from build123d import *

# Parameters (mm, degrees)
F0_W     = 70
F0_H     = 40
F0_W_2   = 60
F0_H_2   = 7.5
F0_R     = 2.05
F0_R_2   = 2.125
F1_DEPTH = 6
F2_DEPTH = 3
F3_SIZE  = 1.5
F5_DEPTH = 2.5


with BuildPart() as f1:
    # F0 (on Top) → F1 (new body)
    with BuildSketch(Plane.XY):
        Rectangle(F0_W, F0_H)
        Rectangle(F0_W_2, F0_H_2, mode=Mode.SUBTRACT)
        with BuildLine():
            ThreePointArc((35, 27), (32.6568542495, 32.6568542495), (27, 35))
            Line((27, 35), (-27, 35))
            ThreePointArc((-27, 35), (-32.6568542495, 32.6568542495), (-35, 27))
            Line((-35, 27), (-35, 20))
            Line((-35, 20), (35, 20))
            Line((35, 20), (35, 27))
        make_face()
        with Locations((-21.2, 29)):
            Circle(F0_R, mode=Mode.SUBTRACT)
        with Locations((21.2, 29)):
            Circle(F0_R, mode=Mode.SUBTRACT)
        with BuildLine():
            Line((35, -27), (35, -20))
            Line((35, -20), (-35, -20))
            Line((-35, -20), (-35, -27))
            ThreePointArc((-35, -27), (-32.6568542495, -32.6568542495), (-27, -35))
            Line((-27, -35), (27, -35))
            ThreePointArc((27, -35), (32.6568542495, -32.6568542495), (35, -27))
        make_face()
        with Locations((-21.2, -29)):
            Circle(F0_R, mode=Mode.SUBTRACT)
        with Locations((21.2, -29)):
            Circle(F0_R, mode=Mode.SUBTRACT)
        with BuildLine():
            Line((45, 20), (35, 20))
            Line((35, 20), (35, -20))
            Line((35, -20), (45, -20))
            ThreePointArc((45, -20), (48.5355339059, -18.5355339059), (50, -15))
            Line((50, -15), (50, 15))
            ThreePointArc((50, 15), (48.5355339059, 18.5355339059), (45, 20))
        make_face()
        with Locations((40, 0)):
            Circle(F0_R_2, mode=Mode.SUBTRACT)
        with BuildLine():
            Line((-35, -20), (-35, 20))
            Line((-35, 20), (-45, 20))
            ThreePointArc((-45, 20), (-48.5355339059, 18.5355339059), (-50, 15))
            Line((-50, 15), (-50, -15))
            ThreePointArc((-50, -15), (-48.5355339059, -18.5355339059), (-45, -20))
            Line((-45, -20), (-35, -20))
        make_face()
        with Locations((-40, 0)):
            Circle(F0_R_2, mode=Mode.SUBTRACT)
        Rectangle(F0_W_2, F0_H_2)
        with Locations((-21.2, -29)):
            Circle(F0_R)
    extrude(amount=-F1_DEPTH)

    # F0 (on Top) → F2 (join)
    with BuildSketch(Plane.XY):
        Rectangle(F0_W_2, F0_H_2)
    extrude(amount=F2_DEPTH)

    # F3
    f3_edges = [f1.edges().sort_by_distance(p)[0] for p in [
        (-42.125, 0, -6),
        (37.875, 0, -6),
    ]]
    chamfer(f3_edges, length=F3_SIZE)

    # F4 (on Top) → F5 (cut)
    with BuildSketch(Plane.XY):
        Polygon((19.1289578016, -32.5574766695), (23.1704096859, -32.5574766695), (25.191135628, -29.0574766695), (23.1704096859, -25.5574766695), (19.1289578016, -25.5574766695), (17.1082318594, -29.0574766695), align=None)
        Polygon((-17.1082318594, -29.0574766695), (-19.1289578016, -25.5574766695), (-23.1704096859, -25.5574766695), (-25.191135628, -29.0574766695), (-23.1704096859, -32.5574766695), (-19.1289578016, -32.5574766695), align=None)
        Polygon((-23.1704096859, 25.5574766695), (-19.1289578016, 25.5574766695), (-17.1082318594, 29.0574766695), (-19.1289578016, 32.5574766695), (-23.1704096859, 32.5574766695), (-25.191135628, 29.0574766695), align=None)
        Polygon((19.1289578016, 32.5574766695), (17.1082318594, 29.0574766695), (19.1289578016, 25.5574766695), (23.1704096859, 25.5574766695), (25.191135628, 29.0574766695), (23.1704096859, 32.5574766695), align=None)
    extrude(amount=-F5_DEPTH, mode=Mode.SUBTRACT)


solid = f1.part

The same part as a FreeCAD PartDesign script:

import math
import FreeCAD as App
import Part
import Sketcher

V = App.Vector
Q = App.Units.Quantity


def edges_at(feature, points):
    """Names of the edges that pass closest to the given points."""
    edges = feature.Shape.Edges
    near = lambda p: min(range(len(edges)), key=lambda i: edges[i].distToShape(Part.Vertex(*p))[0])
    return sorted({f"Edge{near(p) + 1}" for p in points})

doc = App.newDocument("Part")
body = doc.addObject("PartDesign::Body", "Body")

sketch1 = doc.addObject("Sketcher::SketchObject", "Sketch")
body.addObject(sketch1)
sketch1.AttachmentSupport = (doc.XY_Plane, [""])
sketch1.MapMode = "FlatFace"
sketch1.addGeometry([
    Part.LineSegment(V(-35, 27, 0), V(-35, 20, 0)),
    Part.LineSegment(V(-35, 20, 0), V(-45, 20, 0)),
    Part.ArcOfCircle(Part.Circle(V(-45, 15, 0), V(0, 0, 1), 5), math.radians(90), math.radians(180)),
    Part.LineSegment(V(-50, 15, 0), V(-50, -15, 0)),
    Part.ArcOfCircle(Part.Circle(V(-45, -15, 0), V(0, 0, 1), 5), math.radians(180), math.radians(270)),
    Part.LineSegment(V(-45, -20, 0), V(-35, -20, 0)),
    Part.LineSegment(V(-35, -20, 0), V(-35, -27, 0)),
    Part.ArcOfCircle(Part.Circle(V(-27, -27, 0), V(0, 0, 1), 8), math.radians(180), math.radians(270)),
    Part.LineSegment(V(-27, -35, 0), V(27, -35, 0)),
    Part.ArcOfCircle(Part.Circle(V(27, -27, 0), V(0, 0, 1), 8), math.radians(-90), math.radians(0)),
    Part.LineSegment(V(35, -27, 0), V(35, -20, 0)),
    Part.LineSegment(V(35, -20, 0), V(45, -20, 0)),
    Part.ArcOfCircle(Part.Circle(V(45, -15, 0), V(0, 0, 1), 5), math.radians(-90), math.radians(0)),
    Part.LineSegment(V(50, -15, 0), V(50, 15, 0)),
    Part.ArcOfCircle(Part.Circle(V(45, 15, 0), V(0, 0, 1), 5), math.radians(0), math.radians(90)),
    Part.LineSegment(V(45, 20, 0), V(35, 20, 0)),
    Part.LineSegment(V(35, 20, 0), V(35, 27, 0)),
    Part.ArcOfCircle(Part.Circle(V(27, 27, 0), V(0, 0, 1), 8), math.radians(0), math.radians(90)),
    Part.LineSegment(V(27, 35, 0), V(-27, 35, 0)),
    Part.ArcOfCircle(Part.Circle(V(-27, 27, 0), V(0, 0, 1), 8), math.radians(90), math.radians(180)),
    Part.Circle(V(-40, 0, 0), V(0, 0, 1), 2.125),
    Part.Circle(V(21.2, -29, 0), V(0, 0, 1), 2.05),
    Part.Circle(V(40, 0, 0), V(0, 0, 1), 2.125),
    Part.Circle(V(-21.2, 29, 0), V(0, 0, 1), 2.05),
    Part.Circle(V(21.2, 29, 0), V(0, 0, 1), 2.05),
], False)
sketch1.addConstraint([
    Sketcher.Constraint("Coincident", 0, 2, 1, 1),
    Sketcher.Constraint("Tangent", 1, 2, 2, 1),
    Sketcher.Constraint("Tangent", 2, 2, 3, 1),
    Sketcher.Constraint("Tangent", 3, 2, 4, 1),
    Sketcher.Constraint("Tangent", 4, 2, 5, 1),
    Sketcher.Constraint("Coincident", 5, 2, 6, 1),
    Sketcher.Constraint("Tangent", 6, 2, 7, 1),
    Sketcher.Constraint("Tangent", 7, 2, 8, 1),
    Sketcher.Constraint("Tangent", 8, 2, 9, 1),
    Sketcher.Constraint("Tangent", 9, 2, 10, 1),
    Sketcher.Constraint("Coincident", 10, 2, 11, 1),
    Sketcher.Constraint("Tangent", 11, 2, 12, 1),
    Sketcher.Constraint("Tangent", 12, 2, 13, 1),
    Sketcher.Constraint("Tangent", 13, 2, 14, 1),
    Sketcher.Constraint("Tangent", 14, 2, 15, 1),
    Sketcher.Constraint("Coincident", 15, 2, 16, 1),
    Sketcher.Constraint("Tangent", 16, 2, 17, 1),
    Sketcher.Constraint("Tangent", 17, 2, 18, 1),
    Sketcher.Constraint("Tangent", 18, 2, 19, 1),
    Sketcher.Constraint("Tangent", 19, 2, 0, 1),
    Sketcher.Constraint("Vertical", 0),
    Sketcher.Constraint("Horizontal", 1),
    Sketcher.Constraint("Vertical", 3),
    Sketcher.Constraint("Horizontal", 5),
    Sketcher.Constraint("Vertical", 6),
    Sketcher.Constraint("Horizontal", 8),
    Sketcher.Constraint("Vertical", 10),
    Sketcher.Constraint("Horizontal", 11),
    Sketcher.Constraint("Vertical", 13),
    Sketcher.Constraint("Horizontal", 15),
    Sketcher.Constraint("Vertical", 16),
    Sketcher.Constraint("Horizontal", 18),
    Sketcher.Constraint("Equal", 2, 4),
    Sketcher.Constraint("Equal", 7, 9),
    Sketcher.Constraint("Equal", 4, 12),
    Sketcher.Constraint("Equal", 12, 14),
    Sketcher.Constraint("Equal", 9, 17),
    Sketcher.Constraint("Equal", 17, 19),
    Sketcher.Constraint("Equal", 20, 22),
    Sketcher.Constraint("Equal", 21, 23),
    Sketcher.Constraint("Equal", 23, 24),
    Sketcher.Constraint("Symmetric", 2, 3, 12, 3, -1, 1),
    Sketcher.Constraint("Symmetric", 7, 3, 17, 3, -1, 1),
    Sketcher.Constraint("Symmetric", 20, 3, 22, 3, -1, 1),
    Sketcher.Constraint("Symmetric", 21, 3, 23, 3, -1, 1),
    Sketcher.Constraint("Symmetric", 23, 3, 24, 3, -2),
    Sketcher.Constraint("Symmetric", 5, 2, 10, 2, -2),
    Sketcher.Constraint("Symmetric", 0, 2, 15, 2, -2),
    Sketcher.Constraint("PointOnObject", 20, 3, -1),
    Sketcher.Constraint("Radius", 2, Q("5 mm")),
    Sketcher.Constraint("Radius", 7, Q("8 mm")),
    Sketcher.Constraint("Diameter", 21, Q("4.1 mm")),
    Sketcher.Constraint("Diameter", 20, Q("4.25 mm")),
    Sketcher.Constraint("DistanceX", 1, 2, 1, 1, Q("10 mm")),
    Sketcher.Constraint("DistanceX", 8, 1, 8, 2, Q("54 mm")),
    Sketcher.Constraint("DistanceY", 0, 2, 0, 1, Q("7 mm")),
    Sketcher.Constraint("DistanceY", 3, 2, 3, 1, Q("30 mm")),
    Sketcher.Constraint("DistanceX", 20, 3, -1, 1, Q("40 mm")),
    Sketcher.Constraint("DistanceY", 21, 3, -1, 1, Q("29 mm")),
    Sketcher.Constraint("DistanceX", -1, 1, 21, 3, Q("21.2 mm")),
])
pad1 = doc.addObject("PartDesign::Pad", "Pad")
body.addObject(pad1)
pad1.Profile = sketch1
pad1.Length = 6
pad1.Reversed = True

sketch2 = doc.addObject("Sketcher::SketchObject", "Sketch001")
body.addObject(sketch2)
sketch2.AttachmentSupport = (doc.XY_Plane, [""])
sketch2.MapMode = "FlatFace"
sketch2.addGeometry([
    Part.LineSegment(V(-30, 3.75, 0), V(-30, -3.75, 0)),
    Part.LineSegment(V(-30, -3.75, 0), V(30, -3.75, 0)),
    Part.LineSegment(V(30, -3.75, 0), V(30, 3.75, 0)),
    Part.LineSegment(V(30, 3.75, 0), V(-30, 3.75, 0)),
], False)
sketch2.addConstraint([
    Sketcher.Constraint("Coincident", 0, 2, 1, 1),
    Sketcher.Constraint("Coincident", 1, 2, 2, 1),
    Sketcher.Constraint("Coincident", 2, 2, 3, 1),
    Sketcher.Constraint("Coincident", 3, 2, 0, 1),
    Sketcher.Constraint("Vertical", 0),
    Sketcher.Constraint("Horizontal", 1),
    Sketcher.Constraint("Vertical", 2),
    Sketcher.Constraint("Horizontal", 3),
    Sketcher.Constraint("Symmetric", 0, 2, 2, 2, -1, 1),
    Sketcher.Constraint("DistanceX", 1, 1, 1, 2, Q("60 mm")),
    Sketcher.Constraint("DistanceY", 0, 2, 0, 1, Q("7.5 mm")),
])
pad2 = doc.addObject("PartDesign::Pad", "Pad001")
body.addObject(pad2)
pad2.Profile = sketch2
pad2.Length = 3
doc.recompute()

chamfer = doc.addObject("PartDesign::Chamfer", "Chamfer")
body.addObject(chamfer)
chamfer.Base = (pad2, edges_at(pad2, [(-42.125, 0, -6), (37.875, 0, -6)]))
chamfer.Size = 1.5

sketch3 = doc.addObject("Sketcher::SketchObject", "Sketch002")
body.addObject(sketch3)
sketch3.AttachmentSupport = (doc.XY_Plane, [""])
sketch3.MapMode = "FlatFace"
sketch3.addGeometry([
    Part.LineSegment(V(19.128958, -32.557477, 0), V(23.17041, -32.557477, 0)),
    Part.LineSegment(V(23.17041, -32.557477, 0), V(25.191136, -29.057477, 0)),
    Part.LineSegment(V(25.191136, -29.057477, 0), V(23.17041, -25.557477, 0)),
    Part.LineSegment(V(23.17041, -25.557477, 0), V(19.128958, -25.557477, 0)),
    Part.LineSegment(V(19.128958, -25.557477, 0), V(17.108232, -29.057477, 0)),
    Part.LineSegment(V(17.108232, -29.057477, 0), V(19.128958, -32.557477, 0)),
    Part.LineSegment(V(-17.108232, -29.057477, 0), V(-19.128958, -25.557477, 0)),
    Part.LineSegment(V(-19.128958, -25.557477, 0), V(-23.17041, -25.557477, 0)),
    Part.LineSegment(V(-23.17041, -25.557477, 0), V(-25.191136, -29.057477, 0)),
    Part.LineSegment(V(-25.191136, -29.057477, 0), V(-23.17041, -32.557477, 0)),
    Part.LineSegment(V(-23.17041, -32.557477, 0), V(-19.128958, -32.557477, 0)),
    Part.LineSegment(V(-19.128958, -32.557477, 0), V(-17.108232, -29.057477, 0)),
    Part.LineSegment(V(-23.17041, 25.557477, 0), V(-19.128958, 25.557477, 0)),
    Part.LineSegment(V(-19.128958, 25.557477, 0), V(-17.108232, 29.057477, 0)),
    Part.LineSegment(V(-17.108232, 29.057477, 0), V(-19.128958, 32.557477, 0)),
    Part.LineSegment(V(-19.128958, 32.557477, 0), V(-23.17041, 32.557477, 0)),
    Part.LineSegment(V(-23.17041, 32.557477, 0), V(-25.191136, 29.057477, 0)),
    Part.LineSegment(V(-25.191136, 29.057477, 0), V(-23.17041, 25.557477, 0)),
    Part.LineSegment(V(19.128958, 32.557477, 0), V(17.108232, 29.057477, 0)),
    Part.LineSegment(V(17.108232, 29.057477, 0), V(19.128958, 25.557477, 0)),
    Part.LineSegment(V(19.128958, 25.557477, 0), V(23.17041, 25.557477, 0)),
    Part.LineSegment(V(23.17041, 25.557477, 0), V(25.191136, 29.057477, 0)),
    Part.LineSegment(V(25.191136, 29.057477, 0), V(23.17041, 32.557477, 0)),
    Part.LineSegment(V(23.17041, 32.557477, 0), V(19.128958, 32.557477, 0)),
], False)
sketch3.addConstraint([
    Sketcher.Constraint("Coincident", 0, 2, 1, 1),
    Sketcher.Constraint("Coincident", 1, 2, 2, 1),
    Sketcher.Constraint("Coincident", 2, 2, 3, 1),
    Sketcher.Constraint("Coincident", 3, 2, 4, 1),
    Sketcher.Constraint("Coincident", 4, 2, 5, 1),
    Sketcher.Constraint("Coincident", 5, 2, 0, 1),
    Sketcher.Constraint("Coincident", 6, 2, 7, 1),
    Sketcher.Constraint("Coincident", 7, 2, 8, 1),
    Sketcher.Constraint("Coincident", 8, 2, 9, 1),
    Sketcher.Constraint("Coincident", 9, 2, 10, 1),
    Sketcher.Constraint("Coincident", 10, 2, 11, 1),
    Sketcher.Constraint("Coincident", 11, 2, 6, 1),
    Sketcher.Constraint("Coincident", 12, 2, 13, 1),
    Sketcher.Constraint("Coincident", 13, 2, 14, 1),
    Sketcher.Constraint("Coincident", 14, 2, 15, 1),
    Sketcher.Constraint("Coincident", 15, 2, 16, 1),
    Sketcher.Constraint("Coincident", 16, 2, 17, 1),
    Sketcher.Constraint("Coincident", 17, 2, 12, 1),
    Sketcher.Constraint("Coincident", 18, 2, 19, 1),
    Sketcher.Constraint("Coincident", 19, 2, 20, 1),
    Sketcher.Constraint("Coincident", 20, 2, 21, 1),
    Sketcher.Constraint("Coincident", 21, 2, 22, 1),
    Sketcher.Constraint("Coincident", 22, 2, 23, 1),
    Sketcher.Constraint("Coincident", 23, 2, 18, 1),
    Sketcher.Constraint("Horizontal", 0),
    Sketcher.Constraint("Horizontal", 3),
    Sketcher.Constraint("Horizontal", 7),
    Sketcher.Constraint("Horizontal", 10),
    Sketcher.Constraint("Horizontal", 12),
    Sketcher.Constraint("Horizontal", 15),
    Sketcher.Constraint("Horizontal", 20),
    Sketcher.Constraint("Horizontal", 23),
    Sketcher.Constraint("Symmetric", 3, 2, 12, 2, -1, 1),
    Sketcher.Constraint("Symmetric", 4, 2, 13, 2, -1, 1),
    Sketcher.Constraint("Symmetric", 5, 2, 14, 2, -1, 1),
    Sketcher.Constraint("Symmetric", 1, 2, 16, 2, -1, 1),
    Sketcher.Constraint("Symmetric", 11, 2, 18, 2, -1, 1),
    Sketcher.Constraint("Symmetric", 6, 2, 19, 2, -1, 1),
    Sketcher.Constraint("Symmetric", 8, 2, 21, 2, -1, 1),
    Sketcher.Constraint("Symmetric", 9, 2, 22, 2, -1, 1),
    Sketcher.Constraint("Symmetric", 3, 2, 6, 2, -2),
    Sketcher.Constraint("Symmetric", 1, 2, 8, 2, -2),
    Sketcher.Constraint("Symmetric", 0, 2, 9, 2, -2),
    Sketcher.Constraint("Symmetric", 4, 2, 11, 2, -2),
    Sketcher.Constraint("Parallel", 1, 4),
    Sketcher.Constraint("Parallel", 2, 5),
    Sketcher.Constraint("Parallel", 5, 6),
    Sketcher.Constraint("Parallel", 4, 8),
    Sketcher.Constraint("Parallel", 8, 11),
    Sketcher.Constraint("Parallel", 13, 16),
    Sketcher.Constraint("Parallel", 14, 17),
    Sketcher.Constraint("Parallel", 16, 18),
    Sketcher.Constraint("Parallel", 18, 21),
    Sketcher.Constraint("Horizontal", 1, 2, 4, 2),
    Sketcher.Constraint("Vertical", 0, 2, 2, 2),
    Sketcher.Constraint("Angle", 1, Q("60 deg")),
    Sketcher.Constraint("DistanceY", 0, 2, 2, 2, Q("7 mm")),
    Sketcher.Constraint("DistanceX", 0, 1, 0, 2, Q("4.041452 mm")),
    Sketcher.Constraint("DistanceX", -1, 1, 0, 2, Q("23.17041 mm")),
    Sketcher.Constraint("DistanceY", 0, 2, -1, 1, Q("32.557477 mm")),
])
pocket1 = doc.addObject("PartDesign::Pocket", "Pocket")
body.addObject(pocket1)
pocket1.Profile = sketch3
pocket1.Length = 2.5

doc.recompute()
